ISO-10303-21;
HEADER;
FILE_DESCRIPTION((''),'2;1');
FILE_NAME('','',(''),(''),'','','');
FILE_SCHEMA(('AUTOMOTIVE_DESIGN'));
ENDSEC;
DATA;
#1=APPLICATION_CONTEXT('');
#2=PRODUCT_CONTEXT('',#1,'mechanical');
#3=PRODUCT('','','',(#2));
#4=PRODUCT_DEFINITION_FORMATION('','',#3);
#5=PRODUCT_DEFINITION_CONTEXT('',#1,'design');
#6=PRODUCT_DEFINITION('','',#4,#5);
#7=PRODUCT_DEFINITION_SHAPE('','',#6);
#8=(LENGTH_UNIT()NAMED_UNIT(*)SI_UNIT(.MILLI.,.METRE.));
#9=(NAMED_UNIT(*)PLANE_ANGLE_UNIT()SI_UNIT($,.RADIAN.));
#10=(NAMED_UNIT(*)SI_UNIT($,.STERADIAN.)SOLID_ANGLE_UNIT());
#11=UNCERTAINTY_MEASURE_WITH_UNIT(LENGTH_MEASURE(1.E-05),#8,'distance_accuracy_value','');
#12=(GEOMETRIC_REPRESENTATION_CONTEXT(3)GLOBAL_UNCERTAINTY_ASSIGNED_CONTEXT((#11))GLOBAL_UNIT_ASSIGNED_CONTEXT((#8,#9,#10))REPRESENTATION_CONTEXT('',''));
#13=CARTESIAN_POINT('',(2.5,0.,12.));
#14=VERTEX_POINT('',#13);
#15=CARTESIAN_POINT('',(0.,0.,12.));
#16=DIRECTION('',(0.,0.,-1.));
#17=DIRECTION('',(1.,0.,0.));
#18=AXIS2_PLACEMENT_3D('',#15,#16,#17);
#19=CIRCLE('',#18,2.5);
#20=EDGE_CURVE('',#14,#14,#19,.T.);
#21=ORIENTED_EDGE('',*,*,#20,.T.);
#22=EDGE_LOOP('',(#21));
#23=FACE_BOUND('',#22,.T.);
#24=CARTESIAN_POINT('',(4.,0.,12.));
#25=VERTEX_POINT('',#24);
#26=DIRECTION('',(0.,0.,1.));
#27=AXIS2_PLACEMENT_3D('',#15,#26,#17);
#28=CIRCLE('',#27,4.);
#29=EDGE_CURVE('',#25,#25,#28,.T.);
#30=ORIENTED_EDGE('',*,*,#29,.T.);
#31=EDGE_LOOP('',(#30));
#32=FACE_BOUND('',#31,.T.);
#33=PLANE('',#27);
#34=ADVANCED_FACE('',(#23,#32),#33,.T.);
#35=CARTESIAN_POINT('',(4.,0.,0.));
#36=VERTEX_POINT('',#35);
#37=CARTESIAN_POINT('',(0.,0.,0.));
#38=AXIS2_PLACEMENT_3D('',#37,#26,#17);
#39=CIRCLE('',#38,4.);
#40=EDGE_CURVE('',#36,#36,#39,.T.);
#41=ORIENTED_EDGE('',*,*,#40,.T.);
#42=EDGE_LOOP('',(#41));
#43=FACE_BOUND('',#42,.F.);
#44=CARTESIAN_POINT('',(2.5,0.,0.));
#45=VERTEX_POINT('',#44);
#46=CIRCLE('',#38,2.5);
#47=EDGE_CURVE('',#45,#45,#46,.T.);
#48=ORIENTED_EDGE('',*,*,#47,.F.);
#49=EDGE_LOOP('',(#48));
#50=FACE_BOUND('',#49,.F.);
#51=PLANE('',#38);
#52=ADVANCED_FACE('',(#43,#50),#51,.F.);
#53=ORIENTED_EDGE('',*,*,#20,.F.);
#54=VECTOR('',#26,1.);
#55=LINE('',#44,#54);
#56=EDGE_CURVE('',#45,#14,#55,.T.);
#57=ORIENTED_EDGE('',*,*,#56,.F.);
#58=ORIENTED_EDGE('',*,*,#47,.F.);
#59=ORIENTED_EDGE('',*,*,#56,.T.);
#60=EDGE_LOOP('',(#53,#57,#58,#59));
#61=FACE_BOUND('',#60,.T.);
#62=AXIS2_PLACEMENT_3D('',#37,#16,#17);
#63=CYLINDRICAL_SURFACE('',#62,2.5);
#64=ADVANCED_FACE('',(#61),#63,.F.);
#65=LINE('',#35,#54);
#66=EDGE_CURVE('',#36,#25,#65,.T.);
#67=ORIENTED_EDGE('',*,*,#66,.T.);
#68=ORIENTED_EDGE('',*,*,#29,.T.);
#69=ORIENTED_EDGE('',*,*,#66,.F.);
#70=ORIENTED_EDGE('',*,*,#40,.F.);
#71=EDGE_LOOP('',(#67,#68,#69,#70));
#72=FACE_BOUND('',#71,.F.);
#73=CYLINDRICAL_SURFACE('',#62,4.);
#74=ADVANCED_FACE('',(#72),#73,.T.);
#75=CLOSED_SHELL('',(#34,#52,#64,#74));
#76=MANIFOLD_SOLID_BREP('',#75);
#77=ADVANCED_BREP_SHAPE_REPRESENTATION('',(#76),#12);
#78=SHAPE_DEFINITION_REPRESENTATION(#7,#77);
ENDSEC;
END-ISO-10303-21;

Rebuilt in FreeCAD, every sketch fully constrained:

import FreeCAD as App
import Part
import Sketcher

doc = App.newDocument("Part")
params = doc.addObject("Spreadsheet::Sheet", "Params")
for row, (alias, value) in enumerate([
    ("sketch1_diameter", "8 mm"),
    ("pad1_length", "12 mm"),
    ("sketch2_diameter", "5 mm"),
    ("pocket1_length", "13 mm"),
], start=1):
    params.set(f"A{row}", alias)
    params.set(f"B{row}", "=" + value)
    params.setAlias(f"B{row}", alias)

body = doc.addObject("PartDesign::Body", "Body")

# Sketch on XY plane
sketch1 = body.newObject("Sketcher::SketchObject", "Sketch")
sketch1.AttachmentSupport = (doc.getObject("XY_Plane"), [""])
sketch1.MapMode = "FlatFace"
sketch1.addGeometry(Part.Circle(App.Vector(0, 0, 0), App.Vector(0, 0, 1), 4), False)
sketch1.addConstraint([
    Sketcher.Constraint("Coincident", 0, 3, -1, 1),
    Sketcher.Constraint("Diameter", 0, 8.0),
])
sketch1.setExpression("Constraints[1]", "Params.sketch1_diameter")
pad1 = body.newObject("PartDesign::Pad", "Pad")
pad1.Profile = sketch1
pad1.setExpression("Length", "Params.pad1_length")

# Sketch on XY plane
sketch2 = body.newObject("Sketcher::SketchObject", "Sketch001")
sketch2.AttachmentSupport = (doc.getObject("XY_Plane"), [""])
sketch2.MapMode = "FlatFace"
sketch2.addGeometry(Part.Circle(App.Vector(0, 0, 0), App.Vector(0, 0, 1), 2.5), False)
sketch2.addConstraint([
    Sketcher.Constraint("Coincident", 0, 3, -1, 1),
    Sketcher.Constraint("Diameter", 0, 5.0),
])
sketch2.setExpression("Constraints[1]", "Params.sketch2_diameter")
pocket1 = body.newObject("PartDesign::Pocket", "Pocket")
pocket1.Profile = sketch2
pocket1.setExpression("Length", "Params.pocket1_length")
pocket1.Reversed = True

doc.recompute()
